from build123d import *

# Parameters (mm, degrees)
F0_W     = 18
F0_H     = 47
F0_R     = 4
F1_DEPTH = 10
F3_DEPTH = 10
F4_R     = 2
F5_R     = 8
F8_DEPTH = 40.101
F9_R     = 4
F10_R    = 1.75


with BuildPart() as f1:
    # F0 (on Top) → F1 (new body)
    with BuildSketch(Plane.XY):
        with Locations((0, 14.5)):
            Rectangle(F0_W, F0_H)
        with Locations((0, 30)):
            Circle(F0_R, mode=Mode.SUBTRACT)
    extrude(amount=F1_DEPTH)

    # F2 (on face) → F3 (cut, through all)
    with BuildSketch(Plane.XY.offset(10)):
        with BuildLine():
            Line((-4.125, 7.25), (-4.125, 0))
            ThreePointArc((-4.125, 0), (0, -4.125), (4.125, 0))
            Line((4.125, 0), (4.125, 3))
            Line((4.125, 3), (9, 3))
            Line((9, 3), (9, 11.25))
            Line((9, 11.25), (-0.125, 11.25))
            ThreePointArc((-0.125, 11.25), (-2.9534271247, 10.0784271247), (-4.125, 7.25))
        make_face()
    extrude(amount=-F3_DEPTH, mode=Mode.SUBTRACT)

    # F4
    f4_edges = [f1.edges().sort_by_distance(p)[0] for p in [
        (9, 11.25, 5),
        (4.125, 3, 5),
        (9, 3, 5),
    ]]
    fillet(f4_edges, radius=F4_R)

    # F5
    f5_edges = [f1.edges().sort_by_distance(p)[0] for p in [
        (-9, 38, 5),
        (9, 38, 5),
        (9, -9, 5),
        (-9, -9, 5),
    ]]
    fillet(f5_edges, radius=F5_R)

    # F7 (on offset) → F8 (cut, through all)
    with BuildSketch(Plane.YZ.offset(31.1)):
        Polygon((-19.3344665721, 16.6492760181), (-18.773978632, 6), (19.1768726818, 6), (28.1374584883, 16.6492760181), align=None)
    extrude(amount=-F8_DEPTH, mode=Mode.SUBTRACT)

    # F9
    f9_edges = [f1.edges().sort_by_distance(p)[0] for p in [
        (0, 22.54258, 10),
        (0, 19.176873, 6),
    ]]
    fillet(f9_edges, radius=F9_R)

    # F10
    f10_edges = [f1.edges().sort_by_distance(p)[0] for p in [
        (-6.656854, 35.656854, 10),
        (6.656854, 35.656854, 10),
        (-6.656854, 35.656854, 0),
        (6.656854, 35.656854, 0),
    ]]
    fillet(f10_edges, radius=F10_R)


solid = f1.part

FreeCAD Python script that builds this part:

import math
import FreeCAD as App
import Part
import Sketcher
Q = App.Units.Quantity


def edges_at(feature, points):
    """Names of the edges that pass closest to the given points."""
    edges = feature.Shape.Edges
    near = lambda p: min(range(len(edges)), key=lambda i: edges[i].distToShape(Part.Vertex(*p))[0])
    return sorted({f"Edge{near(p) + 1}" for p in points})


def add_polygon(sketch, points):
    """Adds a closed chain of lines whose ends are joined by coincident constraints."""
    first, n = sketch.GeometryCount, len(points)
    for a, b in zip(points, points[1:] + points[:1]):
        sketch.addGeometry(Part.LineSegment(App.Vector(*a, 0), App.Vector(*b, 0)), False)
    for i in range(n):
        sketch.addConstraint(Sketcher.Constraint("Coincident", first + i, 2, first + (i + 1) % n, 1))

doc = App.newDocument("Part")
body = doc.addObject("PartDesign::Body", "Body")

sketch1 = body.newObject("Sketcher::SketchObject", "Sketch")
sketch1.AttachmentSupport = (doc.getObject("XY_Plane"), [""])
sketch1.MapMode = "FlatFace"
add_polygon(sketch1, [(-9, 38), (-9, -9), (9, -9), (9, 38)])
sketch1.addGeometry(Part.Circle(App.Vector(0, 30, 0), App.Vector(0, 0, 1), 4), False)
sketch1.addConstraint([
    Sketcher.Constraint("Vertical", 0),
    Sketcher.Constraint("Horizontal", 1),
    Sketcher.Constraint("Vertical", 2),
    Sketcher.Constraint("Horizontal", 3),
    Sketcher.Constraint("PointOnObject", 4, 3, -2),
    Sketcher.Constraint("Diameter", 4, Q("8 mm")),
    Sketcher.Constraint("DistanceX", 1, 1, 1, 2, Q("18 mm")),
    Sketcher.Constraint("DistanceY", 0, 2, 0, 1, Q("47 mm")),
    Sketcher.Constraint("DistanceY", -1, 1, 4, 3, Q("30 mm")),
    Sketcher.Constraint("DistanceX", 0, 2, -1, 1, Q("9 mm")),
    Sketcher.Constraint("DistanceY", 0, 2, -1, 1, Q("9 mm")),
])
pad1 = body.newObject("PartDesign::Pad", "Pad")
pad1.Profile = sketch1
pad1.Length = 10

sketch2 = body.newObject("Sketcher::SketchObject", "Sketch001")
sketch2.AttachmentSupport = (doc.getObject("XY_Plane"), [""])
sketch2.MapMode = "FlatFace"
sketch2.AttachmentOffset = App.Placement(App.Vector(0, 0, 10), App.Rotation())
sketch2.addGeometry([
    Part.LineSegment(App.Vector(-4.125, 7.25, 0), App.Vector(-4.125, 0, 0)),
    Part.ArcOfCircle(Part.Circle(App.Vector(0, 0, 0), App.Vector(0, 0, 1), 4.125), math.radians(180), math.radians(360)),
    Part.LineSegment(App.Vector(4.125, 0, 0), App.Vector(4.125, 3, 0)),
    Part.LineSegment(App.Vector(4.125, 3, 0), App.Vector(9, 3, 0)),
    Part.LineSegment(App.Vector(9, 3, 0), App.Vector(9, 11.25, 0)),
    Part.LineSegment(App.Vector(9, 11.25, 0), App.Vector(-0.125, 11.25, 0)),
    Part.ArcOfCircle(Part.Circle(App.Vector(-0.125, 7.25, 0), App.Vector(0, 0, 1), 4), math.radians(90), math.radians(180)),
], False)
sketch2.addConstraint([
    Sketcher.Constraint("Tangent", 0, 2, 1, 1),
    Sketcher.Constraint("Tangent", 1, 2, 2, 1),
    Sketcher.Constraint("Coincident", 2, 2, 3, 1),
    Sketcher.Constraint("Coincident", 3, 2, 4, 1),
    Sketcher.Constraint("Coincident", 4, 2, 5, 1),
    Sketcher.Constraint("Tangent", 5, 2, 6, 1),
    Sketcher.Constraint("Tangent", 6, 2, 0, 1),
    Sketcher.Constraint("Vertical", 0),
    Sketcher.Constraint("Vertical", 2),
    Sketcher.Constraint("Horizontal", 3),
    Sketcher.Constraint("Vertical", 4),
    Sketcher.Constraint("Horizontal", 5),
    Sketcher.Constraint("Coincident", 1, 3, -1, 1),
    Sketcher.Constraint("Radius", 6, Q("4 mm")),
    Sketcher.Constraint("DistanceY", 2, 1, 2, 2, Q("3 mm")),
    Sketcher.Constraint("DistanceX", -1, 1, 3, 2, Q("9 mm")),
    Sketcher.Constraint("Radius", 1, Q("4.125 mm")),
    Sketcher.Constraint("DistanceY", 0, 2, 0, 1, Q("7.25 mm")),
])
pocket1 = body.newObject("PartDesign::Pocket", "Pocket")
pocket1.Profile = sketch2
pocket1.Type = "ThroughAll"
doc.recompute()

fillet = body.newObject("PartDesign::Fillet", "Fillet")
fillet.Base = (pocket1, edges_at(pocket1, [(9, 11.25, 5), (4.125, 3, 5), (9, 3, 5)]))
fillet.Radius = 2
doc.recompute()

fillet2 = body.newObject("PartDesign::Fillet", "Fillet001")
fillet2.Base = (fillet, edges_at(fillet, [
    (-9, 38, 5),
    (9, 38, 5),
    (9, -9, 5),
    (-9, -9, 5),
]))
fillet2.Radius = 8

sketch3 = body.newObject("Sketcher::SketchObject", "Sketch002")
sketch3.AttachmentSupport = (doc.getObject("YZ_Plane"), [""])
sketch3.MapMode = "FlatFace"
sketch3.AttachmentOffset = App.Placement(App.Vector(0, 0, 31.1), App.Rotation())
add_polygon(sketch3, [(-19.334467, 16.649276), (-18.773979, 6), (19.176873, 6), (28.137458, 16.649276)])
sketch3.addConstraint([
    Sketcher.Constraint("Horizontal", 1),
    Sketcher.Constraint("Horizontal", 3),
    Sketcher.Constraint("DistanceY", -1, 1, 0, 2, Q("6 mm")),
    Sketcher.Constraint("DistanceX", 1, 1, 1, 2, Q("37.950851 mm")),
    Sketcher.Constraint("DistanceX", 3, 2, 3, 1, Q("47.471925 mm")),
    Sketcher.Constraint("DistanceX", 0, 2, -1, 1, Q("18.773979 mm")),
    Sketcher.Constraint("DistanceX", -1, 1, 2, 2, Q("28.137458 mm")),
    Sketcher.Constraint("Distance", 0, Q("10.664015 mm")),
])
pocket2 = body.newObject("PartDesign::Pocket", "Pocket001")
pocket2.Profile = sketch3
pocket2.Type = "ThroughAll"
doc.recompute()

fillet3 = body.newObject("PartDesign::Fillet", "Fillet002")
fillet3.Base = (pocket2, edges_at(pocket2, [(0, 22.543, 10), (0, 19.177, 6)]))
fillet3.Radius = 4
doc.recompute()

fillet4 = body.newObject("PartDesign::Fillet", "Fillet003")
fillet4.Base = (fillet3, edges_at(fillet3, [
    (-6.657, 35.657, 10),
    (6.657, 35.657, 10),
    (-6.657, 35.657, 0),
    (6.657, 35.657, 0),
]))
fillet4.Radius = 1.75

doc.recompute()
